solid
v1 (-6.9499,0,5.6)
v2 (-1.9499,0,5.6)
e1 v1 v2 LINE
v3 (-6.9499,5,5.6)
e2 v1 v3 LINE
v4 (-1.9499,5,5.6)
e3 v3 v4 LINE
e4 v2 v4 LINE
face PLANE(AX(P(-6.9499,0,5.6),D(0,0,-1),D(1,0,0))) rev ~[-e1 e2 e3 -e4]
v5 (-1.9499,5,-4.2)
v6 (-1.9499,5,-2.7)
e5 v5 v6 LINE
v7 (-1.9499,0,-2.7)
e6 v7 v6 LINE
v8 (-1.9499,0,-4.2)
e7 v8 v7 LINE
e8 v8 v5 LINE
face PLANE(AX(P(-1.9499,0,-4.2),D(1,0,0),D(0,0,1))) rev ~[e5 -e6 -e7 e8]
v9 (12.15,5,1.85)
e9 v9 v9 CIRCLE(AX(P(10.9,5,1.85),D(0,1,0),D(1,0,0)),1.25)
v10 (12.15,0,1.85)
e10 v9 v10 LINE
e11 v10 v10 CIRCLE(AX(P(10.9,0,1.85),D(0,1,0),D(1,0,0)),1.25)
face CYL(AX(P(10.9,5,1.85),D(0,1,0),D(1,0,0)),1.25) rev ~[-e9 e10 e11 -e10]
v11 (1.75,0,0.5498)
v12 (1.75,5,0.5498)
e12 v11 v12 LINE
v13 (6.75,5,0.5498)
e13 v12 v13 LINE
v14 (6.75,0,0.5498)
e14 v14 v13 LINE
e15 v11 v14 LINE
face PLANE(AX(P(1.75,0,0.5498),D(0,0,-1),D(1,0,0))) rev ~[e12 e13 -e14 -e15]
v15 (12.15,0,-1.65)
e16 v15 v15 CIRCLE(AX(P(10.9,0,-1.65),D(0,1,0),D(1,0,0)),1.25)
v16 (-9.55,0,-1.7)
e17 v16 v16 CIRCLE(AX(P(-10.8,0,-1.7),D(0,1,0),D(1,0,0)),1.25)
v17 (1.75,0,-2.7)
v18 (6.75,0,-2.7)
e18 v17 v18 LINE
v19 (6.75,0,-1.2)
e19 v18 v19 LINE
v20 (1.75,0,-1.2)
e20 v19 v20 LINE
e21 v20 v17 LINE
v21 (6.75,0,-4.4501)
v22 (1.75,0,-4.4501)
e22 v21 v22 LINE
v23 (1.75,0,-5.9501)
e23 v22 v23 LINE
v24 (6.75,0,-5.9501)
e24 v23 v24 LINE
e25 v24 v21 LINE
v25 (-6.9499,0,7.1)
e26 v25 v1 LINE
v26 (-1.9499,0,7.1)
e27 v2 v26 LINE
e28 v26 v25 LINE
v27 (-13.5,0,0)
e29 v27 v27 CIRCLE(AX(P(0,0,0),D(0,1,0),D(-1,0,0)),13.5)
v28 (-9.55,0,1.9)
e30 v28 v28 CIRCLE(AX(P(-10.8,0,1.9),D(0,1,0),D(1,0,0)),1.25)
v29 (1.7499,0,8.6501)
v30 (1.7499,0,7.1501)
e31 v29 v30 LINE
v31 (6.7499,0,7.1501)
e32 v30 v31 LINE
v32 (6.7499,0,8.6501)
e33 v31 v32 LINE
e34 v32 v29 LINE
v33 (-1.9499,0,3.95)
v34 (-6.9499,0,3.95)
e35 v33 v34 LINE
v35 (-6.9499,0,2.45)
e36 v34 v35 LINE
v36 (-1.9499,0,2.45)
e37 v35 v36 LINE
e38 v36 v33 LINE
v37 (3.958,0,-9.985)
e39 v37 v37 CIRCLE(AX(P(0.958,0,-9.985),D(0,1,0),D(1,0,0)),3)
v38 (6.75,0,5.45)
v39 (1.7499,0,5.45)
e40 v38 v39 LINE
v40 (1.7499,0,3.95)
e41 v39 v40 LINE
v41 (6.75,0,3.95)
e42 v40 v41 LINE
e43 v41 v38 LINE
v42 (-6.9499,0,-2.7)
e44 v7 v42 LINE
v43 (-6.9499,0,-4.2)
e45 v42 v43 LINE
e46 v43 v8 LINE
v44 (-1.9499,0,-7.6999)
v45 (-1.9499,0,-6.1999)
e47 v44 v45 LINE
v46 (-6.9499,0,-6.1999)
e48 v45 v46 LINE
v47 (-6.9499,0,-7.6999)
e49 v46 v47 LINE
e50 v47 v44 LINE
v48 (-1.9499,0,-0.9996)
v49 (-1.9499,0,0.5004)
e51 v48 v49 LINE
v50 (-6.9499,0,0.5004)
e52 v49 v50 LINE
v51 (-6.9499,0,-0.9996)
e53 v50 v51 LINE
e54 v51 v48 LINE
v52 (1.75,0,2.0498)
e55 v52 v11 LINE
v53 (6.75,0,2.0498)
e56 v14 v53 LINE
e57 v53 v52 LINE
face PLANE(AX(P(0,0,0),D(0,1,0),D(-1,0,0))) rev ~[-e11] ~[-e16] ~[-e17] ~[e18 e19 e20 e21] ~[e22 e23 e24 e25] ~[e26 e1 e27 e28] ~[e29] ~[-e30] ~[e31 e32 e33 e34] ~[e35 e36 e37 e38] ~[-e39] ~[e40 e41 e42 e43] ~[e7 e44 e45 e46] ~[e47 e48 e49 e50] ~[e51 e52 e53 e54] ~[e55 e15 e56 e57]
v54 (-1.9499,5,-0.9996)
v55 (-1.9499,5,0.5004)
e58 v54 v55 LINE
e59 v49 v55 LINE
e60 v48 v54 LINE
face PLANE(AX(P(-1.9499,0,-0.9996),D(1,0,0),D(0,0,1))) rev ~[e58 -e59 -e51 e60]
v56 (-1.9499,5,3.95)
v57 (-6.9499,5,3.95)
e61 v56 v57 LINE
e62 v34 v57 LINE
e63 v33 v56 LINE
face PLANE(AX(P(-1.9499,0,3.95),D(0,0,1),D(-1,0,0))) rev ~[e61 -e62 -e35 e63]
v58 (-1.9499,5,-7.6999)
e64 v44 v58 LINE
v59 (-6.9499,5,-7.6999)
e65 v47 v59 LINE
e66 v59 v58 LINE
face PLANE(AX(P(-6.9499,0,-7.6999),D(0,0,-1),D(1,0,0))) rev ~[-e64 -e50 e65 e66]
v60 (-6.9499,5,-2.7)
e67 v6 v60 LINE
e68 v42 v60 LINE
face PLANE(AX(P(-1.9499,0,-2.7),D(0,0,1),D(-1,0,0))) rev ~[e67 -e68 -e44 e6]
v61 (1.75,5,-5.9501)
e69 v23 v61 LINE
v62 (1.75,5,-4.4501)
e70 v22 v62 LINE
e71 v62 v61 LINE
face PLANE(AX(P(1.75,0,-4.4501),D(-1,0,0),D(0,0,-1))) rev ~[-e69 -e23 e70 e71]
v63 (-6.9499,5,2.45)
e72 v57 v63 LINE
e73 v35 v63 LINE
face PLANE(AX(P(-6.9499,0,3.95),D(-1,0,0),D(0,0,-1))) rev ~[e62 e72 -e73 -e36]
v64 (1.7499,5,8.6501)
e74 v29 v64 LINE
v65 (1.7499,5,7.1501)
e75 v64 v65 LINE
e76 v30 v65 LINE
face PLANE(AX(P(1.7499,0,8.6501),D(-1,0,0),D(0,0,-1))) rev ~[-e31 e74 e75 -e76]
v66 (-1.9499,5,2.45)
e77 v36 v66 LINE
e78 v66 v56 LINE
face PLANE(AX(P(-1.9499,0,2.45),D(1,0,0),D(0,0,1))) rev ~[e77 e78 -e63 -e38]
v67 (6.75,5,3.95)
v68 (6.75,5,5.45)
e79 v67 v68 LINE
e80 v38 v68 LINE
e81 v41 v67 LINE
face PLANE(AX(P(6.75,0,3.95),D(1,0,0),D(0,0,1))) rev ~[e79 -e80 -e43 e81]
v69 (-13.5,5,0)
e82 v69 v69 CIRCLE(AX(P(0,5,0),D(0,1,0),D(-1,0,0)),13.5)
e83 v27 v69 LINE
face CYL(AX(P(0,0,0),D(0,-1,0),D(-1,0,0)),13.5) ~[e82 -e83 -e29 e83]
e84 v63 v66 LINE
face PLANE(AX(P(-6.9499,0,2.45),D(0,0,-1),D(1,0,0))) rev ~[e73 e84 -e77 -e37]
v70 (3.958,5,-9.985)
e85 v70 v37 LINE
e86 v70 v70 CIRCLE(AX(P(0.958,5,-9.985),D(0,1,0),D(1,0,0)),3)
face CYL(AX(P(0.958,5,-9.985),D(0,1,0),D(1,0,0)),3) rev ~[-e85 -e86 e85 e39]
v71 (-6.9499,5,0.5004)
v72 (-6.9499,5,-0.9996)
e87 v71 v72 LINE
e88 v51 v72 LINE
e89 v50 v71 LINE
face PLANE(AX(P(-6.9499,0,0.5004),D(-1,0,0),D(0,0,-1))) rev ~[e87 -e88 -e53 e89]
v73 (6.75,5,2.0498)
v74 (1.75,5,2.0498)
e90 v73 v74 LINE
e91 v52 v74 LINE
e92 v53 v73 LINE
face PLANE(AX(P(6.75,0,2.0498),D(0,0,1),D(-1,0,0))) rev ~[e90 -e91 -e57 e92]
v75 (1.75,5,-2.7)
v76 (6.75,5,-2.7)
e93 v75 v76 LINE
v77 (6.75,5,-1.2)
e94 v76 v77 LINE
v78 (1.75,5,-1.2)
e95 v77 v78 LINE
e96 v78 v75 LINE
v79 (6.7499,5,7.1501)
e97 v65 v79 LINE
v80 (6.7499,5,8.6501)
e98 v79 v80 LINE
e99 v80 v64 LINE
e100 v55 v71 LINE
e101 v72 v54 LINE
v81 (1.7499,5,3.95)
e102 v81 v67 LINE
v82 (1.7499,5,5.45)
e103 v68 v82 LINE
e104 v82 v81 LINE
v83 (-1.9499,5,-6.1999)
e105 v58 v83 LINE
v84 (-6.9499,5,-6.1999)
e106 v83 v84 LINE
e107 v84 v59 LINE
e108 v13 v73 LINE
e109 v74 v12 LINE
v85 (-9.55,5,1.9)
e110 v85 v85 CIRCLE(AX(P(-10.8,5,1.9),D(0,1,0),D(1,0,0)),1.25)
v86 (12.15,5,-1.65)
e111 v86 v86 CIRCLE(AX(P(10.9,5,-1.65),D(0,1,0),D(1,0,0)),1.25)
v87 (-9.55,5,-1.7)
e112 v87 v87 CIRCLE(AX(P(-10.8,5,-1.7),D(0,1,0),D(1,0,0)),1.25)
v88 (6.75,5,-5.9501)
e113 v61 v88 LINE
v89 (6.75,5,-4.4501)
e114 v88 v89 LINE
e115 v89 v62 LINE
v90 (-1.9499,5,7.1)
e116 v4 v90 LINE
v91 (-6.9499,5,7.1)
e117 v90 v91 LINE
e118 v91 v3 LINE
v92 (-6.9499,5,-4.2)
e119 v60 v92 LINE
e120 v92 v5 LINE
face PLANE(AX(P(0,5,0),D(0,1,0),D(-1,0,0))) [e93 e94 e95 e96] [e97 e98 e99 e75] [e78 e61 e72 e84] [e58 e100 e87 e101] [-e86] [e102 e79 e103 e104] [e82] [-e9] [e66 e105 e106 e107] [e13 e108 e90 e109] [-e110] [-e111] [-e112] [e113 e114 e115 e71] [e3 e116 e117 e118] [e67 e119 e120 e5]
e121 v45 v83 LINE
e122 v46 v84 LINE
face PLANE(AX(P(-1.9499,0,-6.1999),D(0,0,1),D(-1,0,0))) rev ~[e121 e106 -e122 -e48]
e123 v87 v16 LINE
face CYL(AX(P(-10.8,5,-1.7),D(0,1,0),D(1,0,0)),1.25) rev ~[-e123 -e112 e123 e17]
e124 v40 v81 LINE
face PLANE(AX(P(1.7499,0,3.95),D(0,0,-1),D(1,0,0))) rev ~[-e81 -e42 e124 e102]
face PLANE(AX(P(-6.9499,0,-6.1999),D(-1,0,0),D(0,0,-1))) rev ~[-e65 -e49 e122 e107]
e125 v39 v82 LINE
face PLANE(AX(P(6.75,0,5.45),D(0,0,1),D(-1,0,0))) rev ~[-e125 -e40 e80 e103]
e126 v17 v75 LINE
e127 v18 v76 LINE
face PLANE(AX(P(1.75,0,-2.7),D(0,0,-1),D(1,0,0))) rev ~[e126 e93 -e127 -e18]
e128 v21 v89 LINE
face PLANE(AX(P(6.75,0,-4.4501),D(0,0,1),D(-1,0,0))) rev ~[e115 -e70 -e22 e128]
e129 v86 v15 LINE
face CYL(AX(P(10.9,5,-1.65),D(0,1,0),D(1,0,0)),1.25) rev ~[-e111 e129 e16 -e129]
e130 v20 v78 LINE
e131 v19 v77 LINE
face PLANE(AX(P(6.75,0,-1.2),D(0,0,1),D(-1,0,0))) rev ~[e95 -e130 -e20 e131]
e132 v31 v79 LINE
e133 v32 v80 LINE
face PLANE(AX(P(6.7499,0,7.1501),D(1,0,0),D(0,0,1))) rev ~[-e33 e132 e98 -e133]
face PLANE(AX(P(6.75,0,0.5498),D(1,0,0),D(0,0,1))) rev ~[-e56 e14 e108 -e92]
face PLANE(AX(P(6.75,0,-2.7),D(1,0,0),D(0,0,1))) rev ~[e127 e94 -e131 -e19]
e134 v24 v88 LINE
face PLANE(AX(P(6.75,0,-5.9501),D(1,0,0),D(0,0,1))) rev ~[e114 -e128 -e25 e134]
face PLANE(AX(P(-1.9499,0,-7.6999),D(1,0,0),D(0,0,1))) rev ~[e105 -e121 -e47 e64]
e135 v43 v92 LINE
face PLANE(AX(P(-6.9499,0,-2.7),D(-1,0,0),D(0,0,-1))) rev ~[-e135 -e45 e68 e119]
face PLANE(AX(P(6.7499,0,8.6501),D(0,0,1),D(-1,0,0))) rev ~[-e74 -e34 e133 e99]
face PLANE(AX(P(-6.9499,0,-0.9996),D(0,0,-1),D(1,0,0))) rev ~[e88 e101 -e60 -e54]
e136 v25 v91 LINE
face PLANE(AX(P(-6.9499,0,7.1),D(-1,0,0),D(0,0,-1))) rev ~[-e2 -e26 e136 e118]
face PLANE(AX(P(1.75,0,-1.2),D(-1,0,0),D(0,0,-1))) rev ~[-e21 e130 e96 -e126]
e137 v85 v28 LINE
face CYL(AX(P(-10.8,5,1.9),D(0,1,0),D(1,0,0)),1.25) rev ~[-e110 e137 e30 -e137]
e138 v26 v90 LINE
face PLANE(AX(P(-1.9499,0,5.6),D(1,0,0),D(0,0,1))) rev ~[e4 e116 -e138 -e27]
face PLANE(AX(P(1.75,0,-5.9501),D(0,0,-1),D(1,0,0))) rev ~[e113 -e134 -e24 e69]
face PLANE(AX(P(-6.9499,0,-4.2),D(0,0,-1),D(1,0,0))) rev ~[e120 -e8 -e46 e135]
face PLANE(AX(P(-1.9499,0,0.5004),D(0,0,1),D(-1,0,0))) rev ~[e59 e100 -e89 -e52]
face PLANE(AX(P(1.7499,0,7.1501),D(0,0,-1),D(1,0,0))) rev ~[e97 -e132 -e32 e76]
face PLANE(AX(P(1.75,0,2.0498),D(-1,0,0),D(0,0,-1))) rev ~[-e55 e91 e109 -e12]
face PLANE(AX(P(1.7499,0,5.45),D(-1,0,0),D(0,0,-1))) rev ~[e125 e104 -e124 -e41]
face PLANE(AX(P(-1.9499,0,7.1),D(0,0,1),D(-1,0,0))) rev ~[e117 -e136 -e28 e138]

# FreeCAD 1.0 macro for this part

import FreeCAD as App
import Part
import Sketcher
from FreeCAD import Vector
Q = App.Units.Quantity


def add_polygon(sketch, points):
    """Adds a closed chain of lines whose ends are joined by coincident constraints."""
    first, n = sketch.GeometryCount, len(points)
    for a, b in zip(points, points[1:] + points[:1]):
        sketch.addGeometry(Part.LineSegment(App.Vector(*a, 0), App.Vector(*b, 0)), False)
    for i in range(n):
        sketch.addConstraint(Sketcher.Constraint("Coincident", first + i, 2, first + (i + 1) % n, 1))

doc = App.newDocument("Part")
body = doc.addObject("PartDesign::Body", "Body")

# Sketch on XZ plane
sketch1 = body.newObject("Sketcher::SketchObject", "Sketch")
sketch1.AttachmentSupport = (doc.getObject("XZ_Plane"), [""])
sketch1.MapMode = "FlatFace"
sketch1.addGeometry(Part.Circle(Vector(0, 0, 0), Vector(0, 0, 1), 13.5), False)  # 0
add_polygon(sketch1, [(6.8, -6), (6.8, -4.5), (1.8, -4.5), (1.8, -6)])  # lines 1-4
add_polygon(sketch1, [(6.8, -2.7), (6.8, -1.2), (1.8, -1.2), (1.8, -2.7)])  # lines 5-8
add_polygon(sketch1, [(-1.9, -7.7), (-1.9, -6.2), (-6.9, -6.2), (-6.9, -7.7)])  # lines 9-12
add_polygon(sketch1, [(-1.9, -4.2), (-1.9, -2.7), (-6.9, -2.7), (-6.9, -4.2)])  # lines 13-16
add_polygon(sketch1, [(-1.9, -1), (-1.9, 0.5), (-6.9, 0.5), (-6.9, -1)])  # lines 17-20
add_polygon(sketch1, [(6.8, 0.5), (6.8, 2), (1.8, 2), (1.8, 0.5)])  # lines 21-24
add_polygon(sketch1, [(6.8, 4), (6.8, 5.5), (1.7, 5.5), (1.7, 4)])  # lines 25-28
add_polygon(sketch1, [(6.7, 7.2), (6.7, 8.7), (1.7, 8.7), (1.7, 7.2)])  # lines 29-32
add_polygon(sketch1, [(-1.9, 2.5), (-1.9, 4), (-6.9, 4), (-6.9, 2.5)])  # lines 33-36
add_polygon(sketch1, [(-1.9, 5.6), (-1.9, 7.1), (-6.9, 7.1), (-6.9, 5.6)])  # lines 37-40
sketch1.addConstraint([
    Sketcher.Constraint("Vertical", 1),
    Sketcher.Constraint("Horizontal", 2),
    Sketcher.Constraint("Vertical", 3),
    Sketcher.Constraint("Horizontal", 4),
    Sketcher.Constraint("Vertical", 5),
    Sketcher.Constraint("Horizontal", 6),
    Sketcher.Constraint("Vertical", 7),
    Sketcher.Constraint("Horizontal", 8),
    Sketcher.Constraint("Vertical", 9),
    Sketcher.Constraint("Horizontal", 10),
    Sketcher.Constraint("Vertical", 11),
    Sketcher.Constraint("Horizontal", 12),
    Sketcher.Constraint("Vertical", 13),
    Sketcher.Constraint("Horizontal", 14),
    Sketcher.Constraint("Vertical", 15),
    Sketcher.Constraint("Horizontal", 16),
    Sketcher.Constraint("Vertical", 17),
    Sketcher.Constraint("Horizontal", 18),
    Sketcher.Constraint("Vertical", 19),
    Sketcher.Constraint("Horizontal", 20),
    Sketcher.Constraint("Vertical", 21),
    Sketcher.Constraint("Horizontal", 22),
    Sketcher.Constraint("Vertical", 23),
    Sketcher.Constraint("Horizontal", 24),
    Sketcher.Constraint("Vertical", 25),
    Sketcher.Constraint("Horizontal", 26),
    Sketcher.Constraint("Vertical", 27),
    Sketcher.Constraint("Horizontal", 28),
    Sketcher.Constraint("Vertical", 29),
    Sketcher.Constraint("Horizontal", 30),
    Sketcher.Constraint("Vertical", 31),
    Sketcher.Constraint("Horizontal", 32),
    Sketcher.Constraint("Vertical", 33),
    Sketcher.Constraint("Horizontal", 34),
    Sketcher.Constraint("Vertical", 35),
    Sketcher.Constraint("Horizontal", 36),
    Sketcher.Constraint("Vertical", 37),
    Sketcher.Constraint("Horizontal", 38),
    Sketcher.Constraint("Vertical", 39),
    Sketcher.Constraint("Horizontal", 40),
    Sketcher.Constraint("Coincident", 0, 3, -1, 1),
    Sketcher.Constraint("Horizontal", 8, 2, 13, 2),
    Sketcher.Constraint("Horizontal", 28, 2, 33, 2),
    Sketcher.Constraint("Vertical", 4, 2, 5, 2),
    Sketcher.Constraint("Vertical", 3, 2, 6, 2),
    Sketcher.Constraint("Vertical", 12, 2, 13, 2),
    Sketcher.Constraint("Vertical", 11, 2, 14, 2),
    Sketcher.Constraint("Vertical", 16, 2, 17, 2),
    Sketcher.Constraint("Vertical", 15, 2, 18, 2),
    Sketcher.Constraint("Vertical", 8, 2, 21, 2),
    Sketcher.Constraint("Vertical", 7, 2, 22, 2),
    Sketcher.Constraint("Vertical", 24, 2, 25, 2),
    Sketcher.Constraint("Vertical", 23, 2, 26, 2),
    Sketcher.Constraint("Vertical", 28, 2, 29, 2),
    Sketcher.Constraint("Vertical", 27, 2, 30, 2),
    Sketcher.Constraint("Vertical", 20, 2, 33, 2),
    Sketcher.Constraint("Vertical", 19, 2, 34, 2),
    Sketcher.Constraint("Vertical", 36, 2, 37, 2),
    Sketcher.Constraint("Vertical", 35, 2, 38, 2),
    Sketcher.Constraint("Equal", 8, 10),
    Sketcher.Constraint("Equal", 3, 5),
    Sketcher.Constraint("Equal", 7, 9),
    Sketcher.Constraint("Equal", 11, 13),
    Sketcher.Constraint("Equal", 15, 17),
    Sketcher.Constraint("Equal", 19, 21),
    Sketcher.Constraint("Equal", 23, 25),
    Sketcher.Constraint("Equal", 27, 29),
    Sketcher.Constraint("Equal", 31, 33),
    Sketcher.Constraint("Equal", 35, 37),
    Sketcher.Constraint("Diameter", 0, Q("27 mm")),
    Sketcher.Constraint("DistanceX", 2, 2, 2, 1, Q("5 mm")),
    Sketcher.Constraint("DistanceY", 1, 1, 1, 2, Q("1.5 mm")),
    Sketcher.Constraint("DistanceY", 9, 2, 6, 2, Q("5 mm")),
    Sketcher.Constraint("DistanceY", 1, 2, 24, 2, Q("5 mm")),
    Sketcher.Constraint("DistanceY", 5, 2, -1, 1, Q("1.2 mm")),
    Sketcher.Constraint("DistanceY", -1, 1, 37, 2, Q("7.1 mm")),
    Sketcher.Constraint("DistanceX", 9, 2, 3, 2, Q("3.7 mm")),
    Sketcher.Constraint("DistanceY", 25, 2, 29, 2, Q("3.2 mm")),
    Sketcher.Constraint("DistanceX", -1, 1, 1, 2, Q("6.75 mm")),
    Sketcher.Constraint("DistanceY", 1, 2, -1, 1, Q("4.45 mm")),
    Sketcher.Constraint("DistanceY", -1, 1, 25, 2, Q("5.45 mm")),
    Sketcher.Constraint("DistanceY", -1, 1, 17, 2, Q("0.5004 mm")),
])
pad1 = body.newObject("PartDesign::Pad", "Pad")
pad1.Profile = sketch1
pad1.Length = 5
pad1.Reversed = True

# Sketch on XZ plane
sketch2 = body.newObject("Sketcher::SketchObject", "Sketch001")
sketch2.AttachmentSupport = (doc.getObject("XZ_Plane"), [""])
sketch2.MapMode = "FlatFace"
sketch2.AttachmentOffset = App.Placement(Vector(0, 0, -5), App.Rotation())
sketch2.addGeometry([
    Part.Circle(Vector(-10.8, 1.9, 0), Vector(0, 0, 1), 0.8),  # 0
    Part.Circle(Vector(-10.8, -1.7, 0), Vector(0, 0, 1), 0.8),  # 1
    Part.Circle(Vector(10.9, 1.9, 0), Vector(0, 0, 1), 0.8),  # 2
    Part.Circle(Vector(10.9, -1.6, 0), Vector(0, 0, 1), 0.8),  # 3
    Part.Circle(Vector(1, -10, 0), Vector(0, 0, 1), 3),  # 4
], False)
sketch2.addConstraint([
    Sketcher.Constraint("Equal", 0, 1),
    Sketcher.Constraint("Equal", 1, 2),
    Sketcher.Constraint("Equal", 2, 3),
    Sketcher.Constraint("Vertical", 0, 3, 1, 3),
    Sketcher.Constraint("Vertical", 2, 3, 3, 3),
    Sketcher.Constraint("Diameter", 4, Q("6 mm")),
    Sketcher.Constraint("Diameter", 0, Q("1.5 mm")),
    Sketcher.Constraint("DistanceX", 0, 3, -1, 1, Q("10.8 mm")),
    Sketcher.Constraint("DistanceY", -1, 1, 0, 3, Q("1.9 mm")),
    Sketcher.Constraint("DistanceY", 1, 3, -1, 1, Q("1.7 mm")),
    Sketcher.Constraint("DistanceX", -1, 1, 2, 3, Q("10.9 mm")),
    Sketcher.Constraint("DistanceY", 3, 3, 2, 3, Q("3.5 mm")),
    Sketcher.Constraint("DistanceY", -1, 1, 2, 3, Q("1.85 mm")),
    Sketcher.Constraint("DistanceX", -1, 1, 4, 3, Q("0.958 mm")),
    Sketcher.Constraint("DistanceY", 4, 3, -1, 1, Q("9.985 mm")),
])
pocket1 = body.newObject("PartDesign::Pocket", "Pocket")
pocket1.Profile = sketch2
pocket1.Length = 5
pocket1.Reversed = True

# Sketch on XZ plane
sketch3 = body.newObject("Sketcher::SketchObject", "Sketch002")
sketch3.AttachmentSupport = (doc.getObject("XZ_Plane"), [""])
sketch3.MapMode = "FlatFace"
sketch3.AttachmentOffset = App.Placement(Vector(0, 0, -5), App.Rotation())
sketch3.addGeometry([
    Part.Circle(Vector(-10.8, 1.9, 0), Vector(0, 0, 1), 1.2),
    Part.Circle(Vector(-10.8, -1.7, 0), Vector(0, 0, 1), 1.2),
    Part.Circle(Vector(10.9, 1.9, 0), Vector(0, 0, 1), 1.2),
    Part.Circle(Vector(10.9, -1.6, 0), Vector(0, 0, 1), 1.2),
], False)
sketch3.addConstraint([
    Sketcher.Constraint("Equal", 0, 1),
    Sketcher.Constraint("Equal", 1, 2),
    Sketcher.Constraint("Equal", 2, 3),
    Sketcher.Constraint("Vertical", 0, 3, 1, 3),
    Sketcher.Constraint("Vertical", 2, 3, 3, 3),
    Sketcher.Constraint("Diameter", 0, Q("2.5 mm")),
    Sketcher.Constraint("DistanceX", 0, 3, -1, 1, Q("10.8 mm")),
    Sketcher.Constraint("DistanceY", -1, 1, 0, 3, Q("1.9 mm")),
    Sketcher.Constraint("DistanceY", 1, 3, -1, 1, Q("1.7 mm")),
    Sketcher.Constraint("DistanceX", -1, 1, 2, 3, Q("10.9 mm")),
    Sketcher.Constraint("DistanceY", 3, 3, 2, 3, Q("3.5 mm")),
    Sketcher.Constraint("DistanceY", -1, 1, 2, 3, Q("1.85 mm")),
])
pocket2 = body.newObject("PartDesign::Pocket", "Pocket001")
pocket2.Profile = sketch3
pocket2.Length = 5
pocket2.Reversed = True

doc.recompute()
